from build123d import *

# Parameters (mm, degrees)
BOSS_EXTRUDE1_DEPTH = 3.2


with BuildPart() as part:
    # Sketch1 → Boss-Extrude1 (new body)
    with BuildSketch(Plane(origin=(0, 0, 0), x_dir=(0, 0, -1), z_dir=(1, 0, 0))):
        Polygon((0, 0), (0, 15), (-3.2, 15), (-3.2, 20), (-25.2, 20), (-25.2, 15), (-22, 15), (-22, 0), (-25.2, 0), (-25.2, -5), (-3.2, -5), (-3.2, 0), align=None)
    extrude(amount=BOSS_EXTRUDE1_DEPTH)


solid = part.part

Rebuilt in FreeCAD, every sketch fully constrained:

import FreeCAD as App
import Part
import Sketcher
Q = App.Units.Quantity


def add_polygon(sketch, points):
    """Adds a closed chain of lines whose ends are joined by coincident constraints."""
    first, n = sketch.GeometryCount, len(points)
    for a, b in zip(points, points[1:] + points[:1]):
        sketch.addGeometry(Part.LineSegment(App.Vector(*a, 0), App.Vector(*b, 0)), False)
    for i in range(n):
        sketch.addConstraint(Sketcher.Constraint("Coincident", first + i, 2, first + (i + 1) % n, 1))

doc = App.newDocument("Part")
body = doc.addObject("PartDesign::Body", "Body")

# Sketch on YZ plane
sketch1 = body.newObject("Sketcher::SketchObject", "Sketch")
sketch1.AttachmentSupport = (doc.getObject("YZ_Plane"), [""])
sketch1.MapMode = "FlatFace"
add_polygon(sketch1, [(0, 0), (15, 0), (15, 3.2), (20, 3.2), (20, 25.2), (15, 25.2), (15, 22), (0, 22), (0, 25.2), (-5, 25.2), (-5, 3.2), (0, 3.2)])  # lines 0-11
sketch1.addConstraint(Sketcher.Constraint("Horizontal", 0))
sketch1.addConstraint(Sketcher.Constraint("Vertical", 1))
sketch1.addConstraint(Sketcher.Constraint("Horizontal", 2))
sketch1.addConstraint(Sketcher.Constraint("Vertical", 3))
sketch1.addConstraint(Sketcher.Constraint("Horizontal", 4))
sketch1.addConstraint(Sketcher.Constraint("Vertical", 5))
sketch1.addConstraint(Sketcher.Constraint("Horizontal", 6))
sketch1.addConstraint(Sketcher.Constraint("Vertical", 7))
sketch1.addConstraint(Sketcher.Constraint("Horizontal", 8))
sketch1.addConstraint(Sketcher.Constraint("Vertical", 9))
sketch1.addConstraint(Sketcher.Constraint("Horizontal", 10))
sketch1.addConstraint(Sketcher.Constraint("Vertical", 11))
sketch1.addConstraint(Sketcher.Constraint("Coincident", 11, 2, -1, 1))
sketch1.addConstraint(Sketcher.Constraint("PointOnObject", 6, 2, -2))
sketch1.addConstraint(Sketcher.Constraint("Horizontal", 4, 2, 7, 2))
sketch1.addConstraint(Sketcher.Constraint("Horizontal", 2, 2, 9, 2))
sketch1.addConstraint(Sketcher.Constraint("Vertical", 1, 2, 4, 2))
sketch1.addConstraint(Sketcher.Constraint("Equal", 4, 8))
sketch1.addConstraint(Sketcher.Constraint("Equal", 1, 5))
sketch1.addConstraint(Sketcher.Constraint("DistanceX", 0, 1, 0, 2, Q("15 mm")))
sketch1.addConstraint(Sketcher.Constraint("DistanceX", 2, 1, 2, 2, Q("5 mm")))
sketch1.addConstraint(Sketcher.Constraint("DistanceY", 3, 1, 3, 2, Q("22 mm")))
sketch1.addConstraint(Sketcher.Constraint("DistanceY", 1, 1, 1, 2, Q("3.2 mm")))
pad1 = body.newObject("PartDesign::Pad", "Pad")
pad1.Profile = sketch1
pad1.Length = 3.2

doc.recompute()
